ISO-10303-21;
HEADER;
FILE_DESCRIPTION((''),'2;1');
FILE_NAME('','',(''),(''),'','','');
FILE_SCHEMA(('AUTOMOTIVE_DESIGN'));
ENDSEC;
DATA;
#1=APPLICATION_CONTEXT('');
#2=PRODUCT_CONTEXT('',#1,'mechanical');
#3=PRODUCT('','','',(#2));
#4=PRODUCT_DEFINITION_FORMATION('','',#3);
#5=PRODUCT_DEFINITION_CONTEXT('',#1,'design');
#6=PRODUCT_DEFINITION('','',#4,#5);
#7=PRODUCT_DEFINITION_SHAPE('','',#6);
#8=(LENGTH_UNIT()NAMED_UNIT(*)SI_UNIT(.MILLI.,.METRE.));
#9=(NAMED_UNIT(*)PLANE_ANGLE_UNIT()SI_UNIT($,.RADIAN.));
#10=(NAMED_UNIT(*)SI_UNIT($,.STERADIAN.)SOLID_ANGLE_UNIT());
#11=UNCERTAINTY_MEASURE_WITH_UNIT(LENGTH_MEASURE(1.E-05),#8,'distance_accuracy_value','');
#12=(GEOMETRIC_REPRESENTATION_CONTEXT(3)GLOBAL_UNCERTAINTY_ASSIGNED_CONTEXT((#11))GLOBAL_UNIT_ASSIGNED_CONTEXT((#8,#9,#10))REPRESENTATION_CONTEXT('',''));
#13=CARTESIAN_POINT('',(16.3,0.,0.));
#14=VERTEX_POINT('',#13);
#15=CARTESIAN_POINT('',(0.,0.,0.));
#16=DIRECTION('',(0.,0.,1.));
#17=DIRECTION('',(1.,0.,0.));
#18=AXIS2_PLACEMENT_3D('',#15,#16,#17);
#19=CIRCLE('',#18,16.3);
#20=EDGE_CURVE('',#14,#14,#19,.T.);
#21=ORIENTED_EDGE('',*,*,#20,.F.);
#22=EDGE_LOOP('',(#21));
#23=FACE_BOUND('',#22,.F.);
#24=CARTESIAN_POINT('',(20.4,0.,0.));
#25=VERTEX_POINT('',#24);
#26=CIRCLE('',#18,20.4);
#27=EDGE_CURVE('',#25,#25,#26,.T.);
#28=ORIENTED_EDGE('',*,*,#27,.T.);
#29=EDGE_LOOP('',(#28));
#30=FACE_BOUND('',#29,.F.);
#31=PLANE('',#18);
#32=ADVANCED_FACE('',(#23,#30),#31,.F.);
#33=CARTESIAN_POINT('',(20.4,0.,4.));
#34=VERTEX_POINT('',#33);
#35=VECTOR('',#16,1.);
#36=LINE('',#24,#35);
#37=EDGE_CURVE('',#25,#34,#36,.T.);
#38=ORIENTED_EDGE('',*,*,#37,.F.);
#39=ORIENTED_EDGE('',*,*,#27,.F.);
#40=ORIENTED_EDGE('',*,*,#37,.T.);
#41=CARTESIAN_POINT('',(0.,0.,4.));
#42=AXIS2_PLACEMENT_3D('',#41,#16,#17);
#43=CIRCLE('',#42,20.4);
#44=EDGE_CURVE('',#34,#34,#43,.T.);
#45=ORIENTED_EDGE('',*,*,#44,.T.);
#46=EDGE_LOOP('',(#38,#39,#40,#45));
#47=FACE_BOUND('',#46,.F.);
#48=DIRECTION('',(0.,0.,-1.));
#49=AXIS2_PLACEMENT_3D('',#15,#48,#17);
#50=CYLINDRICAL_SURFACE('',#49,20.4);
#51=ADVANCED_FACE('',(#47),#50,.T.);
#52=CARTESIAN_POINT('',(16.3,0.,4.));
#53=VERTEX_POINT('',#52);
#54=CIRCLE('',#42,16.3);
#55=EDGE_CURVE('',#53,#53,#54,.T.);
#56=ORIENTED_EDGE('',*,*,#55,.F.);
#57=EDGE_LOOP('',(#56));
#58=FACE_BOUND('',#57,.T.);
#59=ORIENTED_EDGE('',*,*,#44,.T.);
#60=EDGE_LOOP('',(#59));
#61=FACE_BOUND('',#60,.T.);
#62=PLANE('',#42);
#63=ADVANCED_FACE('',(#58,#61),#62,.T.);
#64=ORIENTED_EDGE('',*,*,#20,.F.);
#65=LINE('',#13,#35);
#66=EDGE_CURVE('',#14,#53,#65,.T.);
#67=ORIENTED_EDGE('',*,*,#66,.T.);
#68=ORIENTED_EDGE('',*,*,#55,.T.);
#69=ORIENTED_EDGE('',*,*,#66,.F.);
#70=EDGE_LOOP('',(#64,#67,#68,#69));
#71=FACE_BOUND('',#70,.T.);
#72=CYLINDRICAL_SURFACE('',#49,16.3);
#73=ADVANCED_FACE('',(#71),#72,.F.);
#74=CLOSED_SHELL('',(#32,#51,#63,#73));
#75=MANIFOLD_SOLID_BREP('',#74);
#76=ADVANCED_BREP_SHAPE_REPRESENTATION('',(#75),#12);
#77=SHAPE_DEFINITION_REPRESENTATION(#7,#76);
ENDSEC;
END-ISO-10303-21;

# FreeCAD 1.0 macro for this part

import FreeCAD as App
import Part
import Sketcher

V = App.Vector

doc = App.newDocument("Part")
params = doc.addObject("Spreadsheet::Sheet", "Params")
for row, (alias, value) in enumerate([
    ("sketch1_diameter", "40.8 mm"),
    ("sketch1_diameter2", "32.6 mm"),
    ("pad1_length", "4 mm"),
], start=1):
    params.set(f"A{row}", alias)
    params.set(f"B{row}", "=" + value)
    params.setAlias(f"B{row}", alias)

body = doc.addObject("PartDesign::Body", "Body")

sketch1 = body.newObject("Sketcher::SketchObject", "Sketch")
sketch1.AttachmentSupport = (doc.getObject("XY_Plane"), [""])
sketch1.MapMode = "FlatFace"
sketch1.addGeometry([
    Part.Circle(V(0, 0, 0), V(0, 0, 1), 20.4),
    Part.Circle(V(0, 0, 0), V(0, 0, 1), 16.3),
], False)
sketch1.addConstraint([
    Sketcher.Constraint("Coincident", 0, 3, -1, 1),
    Sketcher.Constraint("Coincident", 1, 3, -1, 1),
    Sketcher.Constraint("Diameter", 0, 40.8),
    Sketcher.Constraint("Diameter", 1, 32.6),
])
sketch1.setExpression("Constraints[2]", "Params.sketch1_diameter")
sketch1.setExpression("Constraints[3]", "Params.sketch1_diameter2")
pad1 = body.newObject("PartDesign::Pad", "Pad")
pad1.Profile = sketch1
pad1.setExpression("Length", "Params.pad1_length")

doc.recompute()
